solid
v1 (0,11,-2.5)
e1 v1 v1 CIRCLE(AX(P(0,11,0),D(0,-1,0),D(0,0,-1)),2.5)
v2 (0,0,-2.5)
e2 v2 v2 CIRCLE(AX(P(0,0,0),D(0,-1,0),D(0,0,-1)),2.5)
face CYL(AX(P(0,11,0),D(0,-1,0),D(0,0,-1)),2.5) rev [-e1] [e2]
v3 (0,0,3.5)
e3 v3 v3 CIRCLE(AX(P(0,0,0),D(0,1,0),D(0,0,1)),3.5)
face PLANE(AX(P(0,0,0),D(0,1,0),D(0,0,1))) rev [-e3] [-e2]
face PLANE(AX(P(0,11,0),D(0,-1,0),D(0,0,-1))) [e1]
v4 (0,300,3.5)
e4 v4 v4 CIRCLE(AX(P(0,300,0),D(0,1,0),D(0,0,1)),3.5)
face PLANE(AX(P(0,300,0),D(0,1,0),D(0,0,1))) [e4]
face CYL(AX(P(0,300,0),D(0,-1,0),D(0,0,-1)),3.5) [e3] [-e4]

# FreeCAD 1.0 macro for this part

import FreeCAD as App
import Part
import Sketcher
Q = App.Units.Quantity

doc = App.newDocument("Part")
body = doc.addObject("PartDesign::Body", "Body")

# Sketch on XZ plane
sketch1 = body.newObject("Sketcher::SketchObject", "Sketch")
sketch1.AttachmentSupport = (doc.getObject("XZ_Plane"), [""])
sketch1.MapMode = "FlatFace"
sketch1.addGeometry(Part.Circle(App.Vector(0, 0, 0), App.Vector(0, 0, 1), 3.5), False)
sketch1.addConstraint(Sketcher.Constraint("Coincident", 0, 3, -1, 1))
sketch1.addConstraint(Sketcher.Constraint("Diameter", 0, Q("7 mm")))
pad1 = body.newObject("PartDesign::Pad", "Pad")
pad1.Profile = sketch1
pad1.Length = 300
pad1.Reversed = True

# Sketch on XZ plane
sketch2 = body.newObject("Sketcher::SketchObject", "Sketch001")
sketch2.AttachmentSupport = (doc.getObject("XZ_Plane"), [""])
sketch2.MapMode = "FlatFace"
sketch2.addGeometry(Part.Circle(App.Vector(0, 0, 0), App.Vector(0, 0, 1), 2.5), False)
sketch2.addConstraint(Sketcher.Constraint("Coincident", 0, 3, -1, 1))
sketch2.addConstraint(Sketcher.Constraint("Diameter", 0, Q("5 mm")))
pocket1 = body.newObject("PartDesign::Pocket", "Pocket")
pocket1.Profile = sketch2
pocket1.Length = 11

doc.recompute()
